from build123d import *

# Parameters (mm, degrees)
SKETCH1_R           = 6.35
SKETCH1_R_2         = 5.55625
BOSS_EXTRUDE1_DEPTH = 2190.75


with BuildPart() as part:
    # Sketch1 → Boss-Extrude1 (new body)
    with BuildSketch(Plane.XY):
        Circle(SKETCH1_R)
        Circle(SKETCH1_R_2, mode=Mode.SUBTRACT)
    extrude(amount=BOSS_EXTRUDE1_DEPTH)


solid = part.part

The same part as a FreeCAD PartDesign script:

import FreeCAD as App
import Part
import Sketcher
from FreeCAD import Vector
Q = App.Units.Quantity

doc = App.newDocument("Part")
body = doc.addObject("PartDesign::Body", "Body")

sketch1 = doc.addObject("Sketcher::SketchObject", "Sketch")
body.addObject(sketch1)
sketch1.AttachmentSupport = (doc.XY_Plane, [""])
sketch1.MapMode = "FlatFace"
sketch1.addGeometry([
    Part.Circle(Vector(0, 0, 0), Vector(0, 0, 1), 6.35),
    Part.Circle(Vector(0, 0, 0), Vector(0, 0, 1), 5.55625),
], False)
sketch1.addConstraint([
    Sketcher.Constraint("Coincident", 0, 3, -1, 1),
    Sketcher.Constraint("Coincident", 1, 3, -1, 1),
    Sketcher.Constraint("Diameter", 0, Q("0.5 in")),
    Sketcher.Constraint("Diameter", 1, Q("0.4375 in")),
])
pad1 = doc.addObject("PartDesign::Pad", "Pad")
body.addObject(pad1)
pad1.Profile = sketch1
pad1.Length = Q("86.25 in")

doc.recompute()
